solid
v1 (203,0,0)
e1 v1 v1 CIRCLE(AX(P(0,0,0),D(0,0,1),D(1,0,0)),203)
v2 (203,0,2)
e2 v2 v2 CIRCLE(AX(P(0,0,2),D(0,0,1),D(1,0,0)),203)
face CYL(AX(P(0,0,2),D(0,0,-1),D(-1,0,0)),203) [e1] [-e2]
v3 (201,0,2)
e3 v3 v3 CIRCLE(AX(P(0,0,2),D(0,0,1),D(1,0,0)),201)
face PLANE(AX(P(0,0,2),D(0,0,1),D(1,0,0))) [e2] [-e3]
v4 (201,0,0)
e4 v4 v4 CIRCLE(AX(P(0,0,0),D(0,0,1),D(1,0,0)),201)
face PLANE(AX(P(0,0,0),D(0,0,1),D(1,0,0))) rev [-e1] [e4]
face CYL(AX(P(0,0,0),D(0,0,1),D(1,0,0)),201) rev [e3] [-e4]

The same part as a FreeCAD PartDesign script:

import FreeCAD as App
import Part
import Sketcher

V = App.Vector

doc = App.newDocument("Part")
params = doc.addObject("Spreadsheet::Sheet", "Params")
for row, (alias, value) in enumerate([
    ("sketch1_diameter", "406 mm"),
    ("pad1_length", "2 mm"),
    ("sketch2_diameter", "402 mm"),
], start=1):
    params.set(f"A{row}", alias)
    params.set(f"B{row}", "=" + value)
    params.setAlias(f"B{row}", alias)

body = doc.addObject("PartDesign::Body", "Body")

# Sketch on XY plane
sketch1 = body.newObject("Sketcher::SketchObject", "Sketch")
sketch1.AttachmentSupport = (doc.getObject("XY_Plane"), [""])
sketch1.MapMode = "FlatFace"
sketch1.addGeometry(Part.Circle(V(0, 0, 0), V(0, 0, 1), 203), False)
sketch1.addConstraint([
    Sketcher.Constraint("Coincident", 0, 3, -1, 1),
    Sketcher.Constraint("Diameter", 0, 406.0),
])
sketch1.setExpression("Constraints[1]", "Params.sketch1_diameter")
pad1 = body.newObject("PartDesign::Pad", "Pad")
pad1.Profile = sketch1
pad1.setExpression("Length", "Params.pad1_length")

# Sketch on XY plane
sketch2 = body.newObject("Sketcher::SketchObject", "Sketch001")
sketch2.AttachmentSupport = (doc.getObject("XY_Plane"), [""])
sketch2.MapMode = "FlatFace"
sketch2.AttachmentOffset = App.Placement(V(0, 0, 2), App.Rotation())
sketch2.addGeometry(Part.Circle(V(0, 0, 0), V(0, 0, 1), 201), False)
sketch2.addConstraint([
    Sketcher.Constraint("Coincident", 0, 3, -1, 1),
    Sketcher.Constraint("Diameter", 0, 402.0),
])
sketch2.setExpression("Constraints[1]", "Params.sketch2_diameter")
pocket1 = body.newObject("PartDesign::Pocket", "Pocket")
pocket1.Profile = sketch2
pocket1.Type = "ThroughAll"

doc.recompute()
